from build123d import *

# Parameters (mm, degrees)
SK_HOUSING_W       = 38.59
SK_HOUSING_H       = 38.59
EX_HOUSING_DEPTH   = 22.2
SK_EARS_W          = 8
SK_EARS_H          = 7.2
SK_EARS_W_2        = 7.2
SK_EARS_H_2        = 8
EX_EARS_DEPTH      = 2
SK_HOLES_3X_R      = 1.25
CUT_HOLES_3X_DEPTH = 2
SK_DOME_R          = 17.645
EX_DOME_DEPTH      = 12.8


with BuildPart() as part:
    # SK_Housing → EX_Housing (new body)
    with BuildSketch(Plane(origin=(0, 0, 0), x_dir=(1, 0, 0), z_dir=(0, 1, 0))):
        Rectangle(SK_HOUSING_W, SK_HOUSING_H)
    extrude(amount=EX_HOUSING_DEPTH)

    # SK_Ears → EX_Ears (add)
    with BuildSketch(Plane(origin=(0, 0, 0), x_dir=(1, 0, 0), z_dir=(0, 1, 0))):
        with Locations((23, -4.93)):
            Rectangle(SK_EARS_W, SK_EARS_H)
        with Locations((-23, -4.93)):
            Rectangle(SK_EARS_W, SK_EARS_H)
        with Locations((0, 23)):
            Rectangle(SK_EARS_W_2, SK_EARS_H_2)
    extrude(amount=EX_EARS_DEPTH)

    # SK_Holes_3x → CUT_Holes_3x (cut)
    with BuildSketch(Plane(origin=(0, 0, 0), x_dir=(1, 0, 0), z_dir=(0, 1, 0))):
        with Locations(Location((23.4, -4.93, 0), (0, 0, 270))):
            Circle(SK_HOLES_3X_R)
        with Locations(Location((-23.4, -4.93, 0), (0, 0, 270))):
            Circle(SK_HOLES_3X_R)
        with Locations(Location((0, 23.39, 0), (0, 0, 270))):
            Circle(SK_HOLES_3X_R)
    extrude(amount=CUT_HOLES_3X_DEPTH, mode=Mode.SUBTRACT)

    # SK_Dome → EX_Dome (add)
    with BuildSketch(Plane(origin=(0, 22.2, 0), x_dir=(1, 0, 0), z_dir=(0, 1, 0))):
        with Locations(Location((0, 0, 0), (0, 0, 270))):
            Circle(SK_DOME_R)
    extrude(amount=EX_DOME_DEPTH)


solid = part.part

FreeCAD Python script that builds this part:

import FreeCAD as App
import Part
import Sketcher
Q = App.Units.Quantity


def add_polygon(sketch, points):
    """Adds a closed chain of lines whose ends are joined by coincident constraints."""
    first, n = sketch.GeometryCount, len(points)
    for a, b in zip(points, points[1:] + points[:1]):
        sketch.addGeometry(Part.LineSegment(App.Vector(*a, 0), App.Vector(*b, 0)), False)
    for i in range(n):
        sketch.addConstraint(Sketcher.Constraint("Coincident", first + i, 2, first + (i + 1) % n, 1))

doc = App.newDocument("Part")
body = doc.addObject("PartDesign::Body", "Body")

sketch1 = body.newObject("Sketcher::SketchObject", "Sketch")
sketch1.AttachmentSupport = (doc.getObject("XZ_Plane"), [""])
sketch1.MapMode = "FlatFace"
add_polygon(sketch1, [(-19, -19), (-19, 19), (19, 19), (19, -19)])
sketch1.addConstraint(Sketcher.Constraint("Vertical", 0))
sketch1.addConstraint(Sketcher.Constraint("Horizontal", 1))
sketch1.addConstraint(Sketcher.Constraint("Vertical", 2))
sketch1.addConstraint(Sketcher.Constraint("Horizontal", 3))
sketch1.addConstraint(Sketcher.Constraint("Symmetric", 0, 2, 2, 2, -1, 1))
sketch1.addConstraint(Sketcher.Constraint("Equal", 3, 0))
sketch1.addConstraint(Sketcher.Constraint("DistanceX", 1, 1, 1, 2, Q("38.59 mm")))
pad1 = body.newObject("PartDesign::Pad", "Pad")
pad1.Profile = sketch1
pad1.Length = 22.2
pad1.Reversed = True

sketch2 = body.newObject("Sketcher::SketchObject", "Sketch001")
sketch2.AttachmentSupport = (doc.getObject("XZ_Plane"), [""])
sketch2.MapMode = "FlatFace"
add_polygon(sketch2, [(19, 1), (19, 9), (27, 9), (27, 1)])
add_polygon(sketch2, [(-27, 1), (-27, 9), (-19, 9), (-19, 1)])
add_polygon(sketch2, [(-4, -27), (-4, -19), (4, -19), (4, -27)])
sketch2.addConstraint(Sketcher.Constraint("Vertical", 0))
sketch2.addConstraint(Sketcher.Constraint("Horizontal", 1))
sketch2.addConstraint(Sketcher.Constraint("Vertical", 2))
sketch2.addConstraint(Sketcher.Constraint("Horizontal", 3))
sketch2.addConstraint(Sketcher.Constraint("Vertical", 4))
sketch2.addConstraint(Sketcher.Constraint("Horizontal", 5))
sketch2.addConstraint(Sketcher.Constraint("Vertical", 6))
sketch2.addConstraint(Sketcher.Constraint("Horizontal", 7))
sketch2.addConstraint(Sketcher.Constraint("Vertical", 8))
sketch2.addConstraint(Sketcher.Constraint("Horizontal", 9))
sketch2.addConstraint(Sketcher.Constraint("Vertical", 10))
sketch2.addConstraint(Sketcher.Constraint("Horizontal", 11))
sketch2.addConstraint(Sketcher.Constraint("Symmetric", 1, 2, 4, 2, -2))
sketch2.addConstraint(Sketcher.Constraint("Symmetric", 3, 2, 6, 2, -2))
sketch2.addConstraint(Sketcher.Constraint("Equal", 11, 0))
sketch2.addConstraint(Sketcher.Constraint("Equal", 7, 8))
sketch2.addConstraint(Sketcher.Constraint("DistanceX", 1, 1, 1, 2, Q("8 mm")))
sketch2.addConstraint(Sketcher.Constraint("DistanceX", 9, 1, 9, 2, Q("7.2 mm")))
sketch2.addConstraint(Sketcher.Constraint("DistanceX", -1, 1, 0, 2, Q("19 mm")))
sketch2.addConstraint(Sketcher.Constraint("DistanceY", 8, 2, -1, 1, Q("19 mm")))
sketch2.addConstraint(Sketcher.Constraint("DistanceX", 8, 2, -1, 1, Q("3.6 mm")))
sketch2.addConstraint(Sketcher.Constraint("DistanceY", -1, 1, 0, 2, Q("8.53 mm")))
pad2 = body.newObject("PartDesign::Pad", "Pad001")
pad2.Profile = sketch2
pad2.Length = 2
pad2.Reversed = True

sketch3 = body.newObject("Sketcher::SketchObject", "Sketch002")
sketch3.AttachmentSupport = (doc.getObject("XZ_Plane"), [""])
sketch3.MapMode = "FlatFace"
sketch3.addGeometry(Part.Circle(App.Vector(23.4, 4.9, 0), App.Vector(0, 0, 1), 1.2), False)
sketch3.addGeometry(Part.Circle(App.Vector(-23.4, 4.9, 0), App.Vector(0, 0, 1), 1.2), False)
sketch3.addGeometry(Part.Circle(App.Vector(0, -23.4, 0), App.Vector(0, 0, 1), 1.2), False)
sketch3.addConstraint(Sketcher.Constraint("Equal", 0, 1))
sketch3.addConstraint(Sketcher.Constraint("Equal", 1, 2))
sketch3.addConstraint(Sketcher.Constraint("Symmetric", 0, 3, 1, 3, -2))
sketch3.addConstraint(Sketcher.Constraint("PointOnObject", 2, 3, -2))
sketch3.addConstraint(Sketcher.Constraint("Diameter", 0, Q("2.5 mm")))
sketch3.addConstraint(Sketcher.Constraint("DistanceX", -1, 1, 0, 3, Q("23.4 mm")))
sketch3.addConstraint(Sketcher.Constraint("DistanceY", -1, 1, 0, 3, Q("4.93 mm")))
sketch3.addConstraint(Sketcher.Constraint("DistanceY", 2, 3, -1, 1, Q("23.39 mm")))
pocket1 = body.newObject("PartDesign::Pocket", "Pocket")
pocket1.Profile = sketch3
pocket1.Length = 2

sketch4 = body.newObject("Sketcher::SketchObject", "Sketch003")
sketch4.AttachmentSupport = (doc.getObject("XZ_Plane"), [""])
sketch4.MapMode = "FlatFace"
sketch4.AttachmentOffset = App.Placement(App.Vector(0, 0, -22.2), App.Rotation())
sketch4.addGeometry(Part.Circle(App.Vector(0, 0, 0), App.Vector(0, 0, 1), 18), False)
sketch4.addConstraint(Sketcher.Constraint("Coincident", 0, 3, -1, 1))
sketch4.addConstraint(Sketcher.Constraint("Diameter", 0, Q("35.29 mm")))
pad3 = body.newObject("PartDesign::Pad", "Pad002")
pad3.Profile = sketch4
pad3.Length = 12.8
pad3.Reversed = True

doc.recompute()
